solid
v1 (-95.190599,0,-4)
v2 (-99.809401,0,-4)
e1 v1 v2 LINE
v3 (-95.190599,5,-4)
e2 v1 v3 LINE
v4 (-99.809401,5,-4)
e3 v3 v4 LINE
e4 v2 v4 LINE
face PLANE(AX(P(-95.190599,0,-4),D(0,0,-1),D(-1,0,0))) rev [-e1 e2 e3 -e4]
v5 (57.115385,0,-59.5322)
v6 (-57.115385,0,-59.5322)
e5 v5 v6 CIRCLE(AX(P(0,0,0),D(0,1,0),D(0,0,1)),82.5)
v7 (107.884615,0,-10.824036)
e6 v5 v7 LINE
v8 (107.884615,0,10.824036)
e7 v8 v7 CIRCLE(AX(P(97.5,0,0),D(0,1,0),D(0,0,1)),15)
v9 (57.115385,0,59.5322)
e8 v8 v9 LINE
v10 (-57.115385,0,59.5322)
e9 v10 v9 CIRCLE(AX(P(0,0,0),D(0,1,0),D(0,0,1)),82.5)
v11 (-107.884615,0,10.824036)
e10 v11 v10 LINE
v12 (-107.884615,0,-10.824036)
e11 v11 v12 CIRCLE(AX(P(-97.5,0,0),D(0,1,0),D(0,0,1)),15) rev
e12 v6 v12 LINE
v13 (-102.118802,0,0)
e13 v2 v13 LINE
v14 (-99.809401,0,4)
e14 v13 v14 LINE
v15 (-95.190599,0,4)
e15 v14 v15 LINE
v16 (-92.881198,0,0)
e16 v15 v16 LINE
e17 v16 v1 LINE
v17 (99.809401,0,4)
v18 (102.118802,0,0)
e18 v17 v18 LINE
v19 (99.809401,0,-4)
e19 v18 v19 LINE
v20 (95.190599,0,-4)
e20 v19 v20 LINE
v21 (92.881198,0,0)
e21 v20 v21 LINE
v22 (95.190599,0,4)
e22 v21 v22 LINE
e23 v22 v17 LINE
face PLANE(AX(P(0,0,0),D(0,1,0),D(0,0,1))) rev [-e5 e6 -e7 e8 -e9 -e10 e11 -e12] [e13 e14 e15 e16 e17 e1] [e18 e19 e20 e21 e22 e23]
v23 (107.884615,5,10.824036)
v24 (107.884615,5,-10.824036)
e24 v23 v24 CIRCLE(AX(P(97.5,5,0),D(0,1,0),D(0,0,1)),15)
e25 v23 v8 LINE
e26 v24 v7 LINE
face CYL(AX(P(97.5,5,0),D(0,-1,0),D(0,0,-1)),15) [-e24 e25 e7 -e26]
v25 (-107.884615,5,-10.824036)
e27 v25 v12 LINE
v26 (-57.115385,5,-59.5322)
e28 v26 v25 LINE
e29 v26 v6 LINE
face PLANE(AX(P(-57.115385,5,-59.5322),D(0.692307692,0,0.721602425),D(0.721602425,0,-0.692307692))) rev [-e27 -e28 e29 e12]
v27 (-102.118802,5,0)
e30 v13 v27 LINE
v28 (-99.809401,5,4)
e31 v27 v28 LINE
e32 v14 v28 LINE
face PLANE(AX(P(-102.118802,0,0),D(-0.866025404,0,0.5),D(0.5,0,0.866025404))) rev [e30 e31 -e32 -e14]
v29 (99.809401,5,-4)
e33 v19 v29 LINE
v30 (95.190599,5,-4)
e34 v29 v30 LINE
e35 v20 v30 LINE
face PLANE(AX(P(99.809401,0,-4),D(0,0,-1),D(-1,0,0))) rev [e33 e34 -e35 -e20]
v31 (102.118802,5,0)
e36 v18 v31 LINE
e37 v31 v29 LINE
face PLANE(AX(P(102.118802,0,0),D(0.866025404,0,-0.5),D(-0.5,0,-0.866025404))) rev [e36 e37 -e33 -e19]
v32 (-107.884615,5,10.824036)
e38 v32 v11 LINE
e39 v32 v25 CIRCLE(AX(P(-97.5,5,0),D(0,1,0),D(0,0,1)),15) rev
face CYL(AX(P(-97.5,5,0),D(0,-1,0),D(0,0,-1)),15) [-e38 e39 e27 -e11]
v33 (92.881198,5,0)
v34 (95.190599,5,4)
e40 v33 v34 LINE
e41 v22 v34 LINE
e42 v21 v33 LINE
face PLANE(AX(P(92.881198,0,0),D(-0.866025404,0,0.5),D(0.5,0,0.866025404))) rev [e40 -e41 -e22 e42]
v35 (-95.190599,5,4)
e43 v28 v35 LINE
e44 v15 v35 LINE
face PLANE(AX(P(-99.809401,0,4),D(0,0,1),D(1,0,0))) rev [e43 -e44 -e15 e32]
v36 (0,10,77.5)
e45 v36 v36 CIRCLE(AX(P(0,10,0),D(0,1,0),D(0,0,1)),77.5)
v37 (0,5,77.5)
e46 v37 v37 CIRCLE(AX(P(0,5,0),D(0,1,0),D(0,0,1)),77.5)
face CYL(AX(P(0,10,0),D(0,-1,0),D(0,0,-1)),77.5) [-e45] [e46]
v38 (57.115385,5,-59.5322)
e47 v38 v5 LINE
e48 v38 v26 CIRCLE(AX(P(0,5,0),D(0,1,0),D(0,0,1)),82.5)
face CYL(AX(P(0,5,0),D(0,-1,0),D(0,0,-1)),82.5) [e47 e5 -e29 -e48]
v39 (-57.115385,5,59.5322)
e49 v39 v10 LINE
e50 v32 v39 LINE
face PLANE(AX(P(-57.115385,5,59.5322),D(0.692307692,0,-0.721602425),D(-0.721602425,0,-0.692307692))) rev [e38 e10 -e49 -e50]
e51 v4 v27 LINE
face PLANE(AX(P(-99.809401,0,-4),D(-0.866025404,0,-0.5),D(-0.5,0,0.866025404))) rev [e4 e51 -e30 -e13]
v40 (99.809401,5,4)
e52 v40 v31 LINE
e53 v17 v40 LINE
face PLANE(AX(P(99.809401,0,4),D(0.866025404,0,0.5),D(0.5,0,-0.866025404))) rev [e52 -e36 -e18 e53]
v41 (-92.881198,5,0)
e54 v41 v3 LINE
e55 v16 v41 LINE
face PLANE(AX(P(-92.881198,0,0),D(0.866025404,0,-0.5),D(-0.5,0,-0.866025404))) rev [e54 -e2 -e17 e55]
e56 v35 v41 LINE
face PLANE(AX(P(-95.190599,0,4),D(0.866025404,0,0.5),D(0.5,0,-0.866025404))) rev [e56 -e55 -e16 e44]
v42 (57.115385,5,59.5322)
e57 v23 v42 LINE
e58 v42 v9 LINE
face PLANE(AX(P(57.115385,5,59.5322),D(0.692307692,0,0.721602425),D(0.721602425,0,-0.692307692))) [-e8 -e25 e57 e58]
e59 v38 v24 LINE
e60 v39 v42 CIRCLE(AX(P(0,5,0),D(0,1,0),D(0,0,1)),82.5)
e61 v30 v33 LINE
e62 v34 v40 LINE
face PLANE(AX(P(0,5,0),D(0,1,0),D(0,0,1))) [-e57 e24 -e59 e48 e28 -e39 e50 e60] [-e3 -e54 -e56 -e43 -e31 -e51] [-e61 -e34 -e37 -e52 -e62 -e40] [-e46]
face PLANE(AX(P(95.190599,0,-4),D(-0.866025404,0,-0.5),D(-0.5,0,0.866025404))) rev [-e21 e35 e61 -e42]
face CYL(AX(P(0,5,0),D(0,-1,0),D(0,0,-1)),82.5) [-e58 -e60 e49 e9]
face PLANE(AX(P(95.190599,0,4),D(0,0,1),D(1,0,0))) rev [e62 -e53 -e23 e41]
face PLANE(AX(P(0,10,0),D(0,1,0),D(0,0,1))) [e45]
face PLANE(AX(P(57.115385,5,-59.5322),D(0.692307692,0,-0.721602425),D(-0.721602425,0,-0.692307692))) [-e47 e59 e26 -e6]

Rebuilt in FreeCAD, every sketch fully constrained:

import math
import FreeCAD as App
import Part
import Sketcher
from FreeCAD import Vector
Q = App.Units.Quantity

doc = App.newDocument("Part")
body = doc.addObject("PartDesign::Body", "Body")

# Sketch on XZ plane
sketch1 = body.newObject("Sketcher::SketchObject", "Sketch")
sketch1.AttachmentSupport = (doc.getObject("XZ_Plane"), [""])
sketch1.MapMode = "FlatFace"
sketch1.addGeometry([
    Part.LineSegment(Vector(107.884615, -10.824036, 0), Vector(57.115385, -59.5322, 0)),  # 0
    Part.ArcOfCircle(Part.Circle(Vector(0, 0, 0), Vector(0, 0, 1), 82.5), math.radians(-133.813061), math.radians(-46.186939)),  # 1
    Part.LineSegment(Vector(-57.115385, -59.5322, 0), Vector(-107.884615, -10.824036, 0)),  # 2
    Part.ArcOfCircle(Part.Circle(Vector(-97.5, 0, 0), Vector(0, 0, 1), 15), math.radians(133.813061), math.radians(226.186939)),  # 3
    Part.LineSegment(Vector(-107.884615, 10.824036, 0), Vector(-57.115385, 59.5322, 0)),  # 4
    Part.ArcOfCircle(Part.Circle(Vector(0, 0, 0), Vector(0, 0, 1), 82.5), math.radians(46.186939), math.radians(133.813061)),  # 5
    Part.LineSegment(Vector(57.115385, 59.5322, 0), Vector(107.884615, 10.824036, 0)),  # 6
    Part.ArcOfCircle(Part.Circle(Vector(97.5, 0, 0), Vector(0, 0, 1), 15), math.radians(-46.186939), math.radians(46.186939)),  # 7
], False)
sketch1.addConstraint([
    Sketcher.Constraint("Tangent", 0, 2, 1, 2),
    Sketcher.Constraint("Tangent", 1, 1, 2, 1),
    Sketcher.Constraint("Tangent", 2, 2, 3, 2),
    Sketcher.Constraint("Tangent", 3, 1, 4, 1),
    Sketcher.Constraint("Tangent", 4, 2, 5, 2),
    Sketcher.Constraint("Tangent", 5, 1, 6, 1),
    Sketcher.Constraint("Tangent", 6, 2, 7, 2),
    Sketcher.Constraint("Tangent", 7, 1, 0, 1),
    Sketcher.Constraint("Coincident", 1, 3, -1, 1),
    Sketcher.Constraint("Coincident", 5, 3, -1, 1),
    Sketcher.Constraint("Equal", 1, 5),
    Sketcher.Constraint("Equal", 3, 7),
    Sketcher.Constraint("Symmetric", 3, 3, 7, 3, -1, 1),
    Sketcher.Constraint("PointOnObject", 3, 3, -1),
    Sketcher.Constraint("Radius", 3, 15.0),
    Sketcher.Constraint("Radius", 1, 82.5),
    Sketcher.Constraint("DistanceX", 3, 3, 7, 3, 195.0),
])
pad1 = body.newObject("PartDesign::Pad", "Pad")
pad1.Profile = sketch1
pad1.Length = 5
pad1.Reversed = True

# Sketch on XZ plane
sketch2 = body.newObject("Sketcher::SketchObject", "Sketch001")
sketch2.AttachmentSupport = (doc.getObject("XZ_Plane"), [""])
sketch2.MapMode = "FlatFace"
sketch2.AttachmentOffset = App.Placement(Vector(0, 0, -5), App.Rotation())
sketch2.addGeometry(Part.Circle(Vector(0, 0, 0), Vector(0, 0, 1), 77.5), False)
sketch2.addConstraint([
    Sketcher.Constraint("Coincident", 0, 3, -1, 1),
    Sketcher.Constraint("Diameter", 0, 155.0),
])
pad2 = body.newObject("PartDesign::Pad", "Pad001")
pad2.Profile = sketch2
pad2.Length = 5
pad2.Reversed = True

# Sketch on XZ plane
sketch3 = body.newObject("Sketcher::SketchObject", "Sketch002")
sketch3.AttachmentSupport = (doc.getObject("XZ_Plane"), [""])
sketch3.MapMode = "FlatFace"
sketch3.AttachmentOffset = App.Placement(Vector(0, 0, -5), App.Rotation())
sketch3.addGeometry([
    Part.LineSegment(Vector(-95.190599, -4, 0), Vector(-99.809401, -4, 0)),  # 0
    Part.LineSegment(Vector(-99.809401, -4, 0), Vector(-102.118802, 0, 0)),  # 1
    Part.LineSegment(Vector(-102.118802, 0, 0), Vector(-99.809401, 4, 0)),  # 2
    Part.LineSegment(Vector(-99.809401, 4, 0), Vector(-95.190599, 4, 0)),  # 3
    Part.LineSegment(Vector(-95.190599, 4, 0), Vector(-92.881198, 0, 0)),  # 4
    Part.LineSegment(Vector(-92.881198, 0, 0), Vector(-95.190599, -4, 0)),  # 5
    Part.LineSegment(Vector(99.809401, -4, 0), Vector(95.190599, -4, 0)),  # 6
    Part.LineSegment(Vector(95.190599, -4, 0), Vector(92.881198, 0, 0)),  # 7
    Part.LineSegment(Vector(92.881198, 0, 0), Vector(95.190599, 4, 0)),  # 8
    Part.LineSegment(Vector(95.190599, 4, 0), Vector(99.809401, 4, 0)),  # 9
    Part.LineSegment(Vector(99.809401, 4, 0), Vector(102.118802, 0, 0)),  # 10
    Part.LineSegment(Vector(102.118802, 0, 0), Vector(99.809401, -4, 0)),  # 11
], False)
sketch3.addConstraint([
    Sketcher.Constraint("Coincident", 0, 2, 1, 1),
    Sketcher.Constraint("Coincident", 1, 2, 2, 1),
    Sketcher.Constraint("Coincident", 2, 2, 3, 1),
    Sketcher.Constraint("Coincident", 3, 2, 4, 1),
    Sketcher.Constraint("Coincident", 4, 2, 5, 1),
    Sketcher.Constraint("Coincident", 5, 2, 0, 1),
    Sketcher.Constraint("Coincident", 6, 2, 7, 1),
    Sketcher.Constraint("Coincident", 7, 2, 8, 1),
    Sketcher.Constraint("Coincident", 8, 2, 9, 1),
    Sketcher.Constraint("Coincident", 9, 2, 10, 1),
    Sketcher.Constraint("Coincident", 10, 2, 11, 1),
    Sketcher.Constraint("Coincident", 11, 2, 6, 1),
    Sketcher.Constraint("Horizontal", 0),
    Sketcher.Constraint("Horizontal", 3),
    Sketcher.Constraint("Horizontal", 6),
    Sketcher.Constraint("Horizontal", 9),
    Sketcher.Constraint("Symmetric", 3, 2, 6, 2, -1, 1),
    Sketcher.Constraint("Symmetric", 4, 2, 7, 2, -1, 1),
    Sketcher.Constraint("Symmetric", 5, 2, 8, 2, -1, 1),
    Sketcher.Constraint("Symmetric", 1, 2, 10, 2, -1, 1),
    Sketcher.Constraint("Symmetric", 5, 2, 6, 2, -2),
    Sketcher.Constraint("PointOnObject", 1, 2, -1),
    Sketcher.Constraint("PointOnObject", 4, 2, -1),
    Sketcher.Constraint("Parallel", 1, 4),
    Sketcher.Constraint("Parallel", 2, 5),
    Sketcher.Constraint("Parallel", 7, 10),
    Sketcher.Constraint("Parallel", 8, 11),
    Sketcher.Constraint("Angle", 1, Q("120 deg")),
    Sketcher.Constraint("DistanceY", 0, 2, -1, 1, 4.0),
    Sketcher.Constraint("DistanceX", 0, 2, 6, 2, 195.0),
    Sketcher.Constraint("DistanceX", 0, 2, -1, 1, 99.809401),
])
pocket1 = body.newObject("PartDesign::Pocket", "Pocket")
pocket1.Profile = sketch3
pocket1.Type = "ThroughAll"
pocket1.Reversed = True

doc.recompute()
